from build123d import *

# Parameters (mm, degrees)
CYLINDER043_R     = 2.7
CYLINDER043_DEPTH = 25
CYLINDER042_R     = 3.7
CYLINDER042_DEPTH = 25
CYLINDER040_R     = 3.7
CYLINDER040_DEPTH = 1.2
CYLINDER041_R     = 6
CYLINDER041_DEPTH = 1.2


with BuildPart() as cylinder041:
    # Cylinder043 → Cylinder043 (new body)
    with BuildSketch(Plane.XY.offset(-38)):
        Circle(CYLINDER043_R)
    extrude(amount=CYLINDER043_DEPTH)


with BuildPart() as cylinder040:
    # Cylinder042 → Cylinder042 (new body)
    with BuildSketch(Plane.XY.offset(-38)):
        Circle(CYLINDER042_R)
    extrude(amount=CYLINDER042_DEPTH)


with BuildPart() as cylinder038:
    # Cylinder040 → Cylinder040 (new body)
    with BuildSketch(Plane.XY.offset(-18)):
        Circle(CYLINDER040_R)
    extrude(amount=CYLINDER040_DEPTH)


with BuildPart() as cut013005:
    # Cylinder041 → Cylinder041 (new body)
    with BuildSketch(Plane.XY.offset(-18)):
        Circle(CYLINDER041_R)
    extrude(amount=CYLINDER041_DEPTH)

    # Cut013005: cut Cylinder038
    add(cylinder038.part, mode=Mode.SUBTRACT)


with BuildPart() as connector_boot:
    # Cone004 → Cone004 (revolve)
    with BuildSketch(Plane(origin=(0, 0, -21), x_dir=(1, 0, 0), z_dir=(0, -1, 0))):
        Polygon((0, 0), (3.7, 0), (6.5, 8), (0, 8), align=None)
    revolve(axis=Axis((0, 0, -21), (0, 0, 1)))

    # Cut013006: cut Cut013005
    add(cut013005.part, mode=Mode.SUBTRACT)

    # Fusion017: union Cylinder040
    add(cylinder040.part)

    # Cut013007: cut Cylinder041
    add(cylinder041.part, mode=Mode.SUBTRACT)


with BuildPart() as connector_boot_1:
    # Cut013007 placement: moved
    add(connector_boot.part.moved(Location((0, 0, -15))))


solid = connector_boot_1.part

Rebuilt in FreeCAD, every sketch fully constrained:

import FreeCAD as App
import Part
import Sketcher
from FreeCAD import Vector
Q = App.Units.Quantity


def add_polygon(sketch, points):
    """Adds a closed chain of lines whose ends are joined by coincident constraints."""
    first, n = sketch.GeometryCount, len(points)
    for a, b in zip(points, points[1:] + points[:1]):
        sketch.addGeometry(Part.LineSegment(App.Vector(*a, 0), App.Vector(*b, 0)), False)
    for i in range(n):
        sketch.addConstraint(Sketcher.Constraint("Coincident", first + i, 2, first + (i + 1) % n, 1))

doc = App.newDocument("Part")
body = doc.addObject("PartDesign::Body", "Body")

sketch1 = doc.addObject("Sketcher::SketchObject", "Sketch")
body.addObject(sketch1)
sketch1.AttachmentSupport = (doc.XY_Plane, [""])
sketch1.MapMode = "FlatFace"
sketch1.AttachmentOffset = App.Placement(Vector(0, 0, -38), App.Rotation())
sketch1.addGeometry(Part.Circle(Vector(0, 0, 0), Vector(0, 0, 1), 2.7), False)
sketch1.addConstraint(Sketcher.Constraint("Coincident", 0, 3, -1, 1))
sketch1.addConstraint(Sketcher.Constraint("Diameter", 0, Q("5.4 mm")))
pad1 = doc.addObject("PartDesign::Pad", "Pad")
body.addObject(pad1)
pad1.Profile = sketch1
pad1.Length = 25
body2 = doc.addObject("PartDesign::Body", "Body001")

sketch2 = doc.addObject("Sketcher::SketchObject", "Sketch001")
body2.addObject(sketch2)
sketch2.AttachmentSupport = (doc.getObject("XY_Plane001"), [""])
sketch2.MapMode = "FlatFace"
sketch2.AttachmentOffset = App.Placement(Vector(0, 0, -38), App.Rotation())
sketch2.addGeometry(Part.Circle(Vector(0, 0, 0), Vector(0, 0, 1), 3.7), False)
sketch2.addConstraint(Sketcher.Constraint("Coincident", 0, 3, -1, 1))
sketch2.addConstraint(Sketcher.Constraint("Diameter", 0, Q("7.4 mm")))
pad2 = doc.addObject("PartDesign::Pad", "Pad001")
body2.addObject(pad2)
pad2.Profile = sketch2
pad2.Length = 25
body3 = doc.addObject("PartDesign::Body", "Body002")

sketch3 = doc.addObject("Sketcher::SketchObject", "Sketch002")
body3.addObject(sketch3)
sketch3.AttachmentSupport = (doc.getObject("XY_Plane002"), [""])
sketch3.MapMode = "FlatFace"
sketch3.AttachmentOffset = App.Placement(Vector(0, 0, -18), App.Rotation())
sketch3.addGeometry(Part.Circle(Vector(0, 0, 0), Vector(0, 0, 1), 3.7), False)
sketch3.addConstraint(Sketcher.Constraint("Coincident", 0, 3, -1, 1))
sketch3.addConstraint(Sketcher.Constraint("Diameter", 0, Q("7.4 mm")))
pad3 = doc.addObject("PartDesign::Pad", "Pad002")
body3.addObject(pad3)
pad3.Profile = sketch3
pad3.Length = 1.2
body4 = doc.addObject("PartDesign::Body", "Body003")

sketch4 = doc.addObject("Sketcher::SketchObject", "Sketch003")
body4.addObject(sketch4)
sketch4.AttachmentSupport = (doc.getObject("XY_Plane003"), [""])
sketch4.MapMode = "FlatFace"
sketch4.AttachmentOffset = App.Placement(Vector(0, 0, -18), App.Rotation())
sketch4.addGeometry(Part.Circle(Vector(0, 0, 0), Vector(0, 0, 1), 6), False)
sketch4.addConstraint(Sketcher.Constraint("Coincident", 0, 3, -1, 1))
sketch4.addConstraint(Sketcher.Constraint("Diameter", 0, Q("12 mm")))
pad4 = doc.addObject("PartDesign::Pad", "Pad003")
body4.addObject(pad4)
pad4.Profile = sketch4
pad4.Length = 1.2
doc.recompute()

boolean = doc.addObject("PartDesign::Boolean", "Boolean")
body4.addObject(boolean)
boolean.Type = "Cut"
boolean.addObjects([body3])
body5 = doc.addObject("PartDesign::Body", "Body004")

sketch5 = doc.addObject("Sketcher::SketchObject", "Sketch004")
body5.addObject(sketch5)
sketch5.AttachmentSupport = (doc.getObject("XZ_Plane004"), [""])
sketch5.MapMode = "FlatFace"
add_polygon(sketch5, [(0, -21), (3.7, -21), (6.5, -13), (0, -13)])
sketch5.addConstraint(Sketcher.Constraint("Horizontal", 0))
sketch5.addConstraint(Sketcher.Constraint("Horizontal", 2))
sketch5.addConstraint(Sketcher.Constraint("Vertical", 3))
sketch5.addConstraint(Sketcher.Constraint("PointOnObject", 2, 2, -2))
sketch5.addConstraint(Sketcher.Constraint("DistanceY", 3, 2, 3, 1, Q("8 mm")))
sketch5.addConstraint(Sketcher.Constraint("DistanceX", 0, 1, 0, 2, Q("3.7 mm")))
sketch5.addConstraint(Sketcher.Constraint("DistanceX", 2, 2, 2, 1, Q("6.5 mm")))
sketch5.addConstraint(Sketcher.Constraint("DistanceY", 0, 2, -1, 1, Q("21 mm")))
revolution = doc.addObject("PartDesign::Revolution", "Revolution")
body5.addObject(revolution)
revolution.Profile = sketch5
revolution.ReferenceAxis = (sketch5, ["V_Axis"])
revolution.Angle = 360
doc.recompute()

boolean2 = doc.addObject("PartDesign::Boolean", "Boolean001")
body5.addObject(boolean2)
boolean2.Type = "Cut"
boolean2.addObjects([body4])
doc.recompute()

boolean3 = doc.addObject("PartDesign::Boolean", "Boolean002")
body5.addObject(boolean3)
boolean3.Type = "Fuse"
boolean3.addObjects([body2])
doc.recompute()

boolean4 = doc.addObject("PartDesign::Boolean", "Boolean003")
body5.addObject(boolean4)
boolean4.Type = "Cut"
boolean4.addObjects([body])
body6 = doc.addObject("PartDesign::Body", "Body005")
doc.recompute()

body5.Placement = App.Placement(Vector(0, 0, -15), App.Rotation(Vector(0, 0, 1), 0))
boolean5 = doc.addObject("PartDesign::Boolean", "Boolean004")
body6.addObject(boolean5)
boolean5.Type = "Fuse"
boolean5.addObjects([body5])

doc.recompute()
